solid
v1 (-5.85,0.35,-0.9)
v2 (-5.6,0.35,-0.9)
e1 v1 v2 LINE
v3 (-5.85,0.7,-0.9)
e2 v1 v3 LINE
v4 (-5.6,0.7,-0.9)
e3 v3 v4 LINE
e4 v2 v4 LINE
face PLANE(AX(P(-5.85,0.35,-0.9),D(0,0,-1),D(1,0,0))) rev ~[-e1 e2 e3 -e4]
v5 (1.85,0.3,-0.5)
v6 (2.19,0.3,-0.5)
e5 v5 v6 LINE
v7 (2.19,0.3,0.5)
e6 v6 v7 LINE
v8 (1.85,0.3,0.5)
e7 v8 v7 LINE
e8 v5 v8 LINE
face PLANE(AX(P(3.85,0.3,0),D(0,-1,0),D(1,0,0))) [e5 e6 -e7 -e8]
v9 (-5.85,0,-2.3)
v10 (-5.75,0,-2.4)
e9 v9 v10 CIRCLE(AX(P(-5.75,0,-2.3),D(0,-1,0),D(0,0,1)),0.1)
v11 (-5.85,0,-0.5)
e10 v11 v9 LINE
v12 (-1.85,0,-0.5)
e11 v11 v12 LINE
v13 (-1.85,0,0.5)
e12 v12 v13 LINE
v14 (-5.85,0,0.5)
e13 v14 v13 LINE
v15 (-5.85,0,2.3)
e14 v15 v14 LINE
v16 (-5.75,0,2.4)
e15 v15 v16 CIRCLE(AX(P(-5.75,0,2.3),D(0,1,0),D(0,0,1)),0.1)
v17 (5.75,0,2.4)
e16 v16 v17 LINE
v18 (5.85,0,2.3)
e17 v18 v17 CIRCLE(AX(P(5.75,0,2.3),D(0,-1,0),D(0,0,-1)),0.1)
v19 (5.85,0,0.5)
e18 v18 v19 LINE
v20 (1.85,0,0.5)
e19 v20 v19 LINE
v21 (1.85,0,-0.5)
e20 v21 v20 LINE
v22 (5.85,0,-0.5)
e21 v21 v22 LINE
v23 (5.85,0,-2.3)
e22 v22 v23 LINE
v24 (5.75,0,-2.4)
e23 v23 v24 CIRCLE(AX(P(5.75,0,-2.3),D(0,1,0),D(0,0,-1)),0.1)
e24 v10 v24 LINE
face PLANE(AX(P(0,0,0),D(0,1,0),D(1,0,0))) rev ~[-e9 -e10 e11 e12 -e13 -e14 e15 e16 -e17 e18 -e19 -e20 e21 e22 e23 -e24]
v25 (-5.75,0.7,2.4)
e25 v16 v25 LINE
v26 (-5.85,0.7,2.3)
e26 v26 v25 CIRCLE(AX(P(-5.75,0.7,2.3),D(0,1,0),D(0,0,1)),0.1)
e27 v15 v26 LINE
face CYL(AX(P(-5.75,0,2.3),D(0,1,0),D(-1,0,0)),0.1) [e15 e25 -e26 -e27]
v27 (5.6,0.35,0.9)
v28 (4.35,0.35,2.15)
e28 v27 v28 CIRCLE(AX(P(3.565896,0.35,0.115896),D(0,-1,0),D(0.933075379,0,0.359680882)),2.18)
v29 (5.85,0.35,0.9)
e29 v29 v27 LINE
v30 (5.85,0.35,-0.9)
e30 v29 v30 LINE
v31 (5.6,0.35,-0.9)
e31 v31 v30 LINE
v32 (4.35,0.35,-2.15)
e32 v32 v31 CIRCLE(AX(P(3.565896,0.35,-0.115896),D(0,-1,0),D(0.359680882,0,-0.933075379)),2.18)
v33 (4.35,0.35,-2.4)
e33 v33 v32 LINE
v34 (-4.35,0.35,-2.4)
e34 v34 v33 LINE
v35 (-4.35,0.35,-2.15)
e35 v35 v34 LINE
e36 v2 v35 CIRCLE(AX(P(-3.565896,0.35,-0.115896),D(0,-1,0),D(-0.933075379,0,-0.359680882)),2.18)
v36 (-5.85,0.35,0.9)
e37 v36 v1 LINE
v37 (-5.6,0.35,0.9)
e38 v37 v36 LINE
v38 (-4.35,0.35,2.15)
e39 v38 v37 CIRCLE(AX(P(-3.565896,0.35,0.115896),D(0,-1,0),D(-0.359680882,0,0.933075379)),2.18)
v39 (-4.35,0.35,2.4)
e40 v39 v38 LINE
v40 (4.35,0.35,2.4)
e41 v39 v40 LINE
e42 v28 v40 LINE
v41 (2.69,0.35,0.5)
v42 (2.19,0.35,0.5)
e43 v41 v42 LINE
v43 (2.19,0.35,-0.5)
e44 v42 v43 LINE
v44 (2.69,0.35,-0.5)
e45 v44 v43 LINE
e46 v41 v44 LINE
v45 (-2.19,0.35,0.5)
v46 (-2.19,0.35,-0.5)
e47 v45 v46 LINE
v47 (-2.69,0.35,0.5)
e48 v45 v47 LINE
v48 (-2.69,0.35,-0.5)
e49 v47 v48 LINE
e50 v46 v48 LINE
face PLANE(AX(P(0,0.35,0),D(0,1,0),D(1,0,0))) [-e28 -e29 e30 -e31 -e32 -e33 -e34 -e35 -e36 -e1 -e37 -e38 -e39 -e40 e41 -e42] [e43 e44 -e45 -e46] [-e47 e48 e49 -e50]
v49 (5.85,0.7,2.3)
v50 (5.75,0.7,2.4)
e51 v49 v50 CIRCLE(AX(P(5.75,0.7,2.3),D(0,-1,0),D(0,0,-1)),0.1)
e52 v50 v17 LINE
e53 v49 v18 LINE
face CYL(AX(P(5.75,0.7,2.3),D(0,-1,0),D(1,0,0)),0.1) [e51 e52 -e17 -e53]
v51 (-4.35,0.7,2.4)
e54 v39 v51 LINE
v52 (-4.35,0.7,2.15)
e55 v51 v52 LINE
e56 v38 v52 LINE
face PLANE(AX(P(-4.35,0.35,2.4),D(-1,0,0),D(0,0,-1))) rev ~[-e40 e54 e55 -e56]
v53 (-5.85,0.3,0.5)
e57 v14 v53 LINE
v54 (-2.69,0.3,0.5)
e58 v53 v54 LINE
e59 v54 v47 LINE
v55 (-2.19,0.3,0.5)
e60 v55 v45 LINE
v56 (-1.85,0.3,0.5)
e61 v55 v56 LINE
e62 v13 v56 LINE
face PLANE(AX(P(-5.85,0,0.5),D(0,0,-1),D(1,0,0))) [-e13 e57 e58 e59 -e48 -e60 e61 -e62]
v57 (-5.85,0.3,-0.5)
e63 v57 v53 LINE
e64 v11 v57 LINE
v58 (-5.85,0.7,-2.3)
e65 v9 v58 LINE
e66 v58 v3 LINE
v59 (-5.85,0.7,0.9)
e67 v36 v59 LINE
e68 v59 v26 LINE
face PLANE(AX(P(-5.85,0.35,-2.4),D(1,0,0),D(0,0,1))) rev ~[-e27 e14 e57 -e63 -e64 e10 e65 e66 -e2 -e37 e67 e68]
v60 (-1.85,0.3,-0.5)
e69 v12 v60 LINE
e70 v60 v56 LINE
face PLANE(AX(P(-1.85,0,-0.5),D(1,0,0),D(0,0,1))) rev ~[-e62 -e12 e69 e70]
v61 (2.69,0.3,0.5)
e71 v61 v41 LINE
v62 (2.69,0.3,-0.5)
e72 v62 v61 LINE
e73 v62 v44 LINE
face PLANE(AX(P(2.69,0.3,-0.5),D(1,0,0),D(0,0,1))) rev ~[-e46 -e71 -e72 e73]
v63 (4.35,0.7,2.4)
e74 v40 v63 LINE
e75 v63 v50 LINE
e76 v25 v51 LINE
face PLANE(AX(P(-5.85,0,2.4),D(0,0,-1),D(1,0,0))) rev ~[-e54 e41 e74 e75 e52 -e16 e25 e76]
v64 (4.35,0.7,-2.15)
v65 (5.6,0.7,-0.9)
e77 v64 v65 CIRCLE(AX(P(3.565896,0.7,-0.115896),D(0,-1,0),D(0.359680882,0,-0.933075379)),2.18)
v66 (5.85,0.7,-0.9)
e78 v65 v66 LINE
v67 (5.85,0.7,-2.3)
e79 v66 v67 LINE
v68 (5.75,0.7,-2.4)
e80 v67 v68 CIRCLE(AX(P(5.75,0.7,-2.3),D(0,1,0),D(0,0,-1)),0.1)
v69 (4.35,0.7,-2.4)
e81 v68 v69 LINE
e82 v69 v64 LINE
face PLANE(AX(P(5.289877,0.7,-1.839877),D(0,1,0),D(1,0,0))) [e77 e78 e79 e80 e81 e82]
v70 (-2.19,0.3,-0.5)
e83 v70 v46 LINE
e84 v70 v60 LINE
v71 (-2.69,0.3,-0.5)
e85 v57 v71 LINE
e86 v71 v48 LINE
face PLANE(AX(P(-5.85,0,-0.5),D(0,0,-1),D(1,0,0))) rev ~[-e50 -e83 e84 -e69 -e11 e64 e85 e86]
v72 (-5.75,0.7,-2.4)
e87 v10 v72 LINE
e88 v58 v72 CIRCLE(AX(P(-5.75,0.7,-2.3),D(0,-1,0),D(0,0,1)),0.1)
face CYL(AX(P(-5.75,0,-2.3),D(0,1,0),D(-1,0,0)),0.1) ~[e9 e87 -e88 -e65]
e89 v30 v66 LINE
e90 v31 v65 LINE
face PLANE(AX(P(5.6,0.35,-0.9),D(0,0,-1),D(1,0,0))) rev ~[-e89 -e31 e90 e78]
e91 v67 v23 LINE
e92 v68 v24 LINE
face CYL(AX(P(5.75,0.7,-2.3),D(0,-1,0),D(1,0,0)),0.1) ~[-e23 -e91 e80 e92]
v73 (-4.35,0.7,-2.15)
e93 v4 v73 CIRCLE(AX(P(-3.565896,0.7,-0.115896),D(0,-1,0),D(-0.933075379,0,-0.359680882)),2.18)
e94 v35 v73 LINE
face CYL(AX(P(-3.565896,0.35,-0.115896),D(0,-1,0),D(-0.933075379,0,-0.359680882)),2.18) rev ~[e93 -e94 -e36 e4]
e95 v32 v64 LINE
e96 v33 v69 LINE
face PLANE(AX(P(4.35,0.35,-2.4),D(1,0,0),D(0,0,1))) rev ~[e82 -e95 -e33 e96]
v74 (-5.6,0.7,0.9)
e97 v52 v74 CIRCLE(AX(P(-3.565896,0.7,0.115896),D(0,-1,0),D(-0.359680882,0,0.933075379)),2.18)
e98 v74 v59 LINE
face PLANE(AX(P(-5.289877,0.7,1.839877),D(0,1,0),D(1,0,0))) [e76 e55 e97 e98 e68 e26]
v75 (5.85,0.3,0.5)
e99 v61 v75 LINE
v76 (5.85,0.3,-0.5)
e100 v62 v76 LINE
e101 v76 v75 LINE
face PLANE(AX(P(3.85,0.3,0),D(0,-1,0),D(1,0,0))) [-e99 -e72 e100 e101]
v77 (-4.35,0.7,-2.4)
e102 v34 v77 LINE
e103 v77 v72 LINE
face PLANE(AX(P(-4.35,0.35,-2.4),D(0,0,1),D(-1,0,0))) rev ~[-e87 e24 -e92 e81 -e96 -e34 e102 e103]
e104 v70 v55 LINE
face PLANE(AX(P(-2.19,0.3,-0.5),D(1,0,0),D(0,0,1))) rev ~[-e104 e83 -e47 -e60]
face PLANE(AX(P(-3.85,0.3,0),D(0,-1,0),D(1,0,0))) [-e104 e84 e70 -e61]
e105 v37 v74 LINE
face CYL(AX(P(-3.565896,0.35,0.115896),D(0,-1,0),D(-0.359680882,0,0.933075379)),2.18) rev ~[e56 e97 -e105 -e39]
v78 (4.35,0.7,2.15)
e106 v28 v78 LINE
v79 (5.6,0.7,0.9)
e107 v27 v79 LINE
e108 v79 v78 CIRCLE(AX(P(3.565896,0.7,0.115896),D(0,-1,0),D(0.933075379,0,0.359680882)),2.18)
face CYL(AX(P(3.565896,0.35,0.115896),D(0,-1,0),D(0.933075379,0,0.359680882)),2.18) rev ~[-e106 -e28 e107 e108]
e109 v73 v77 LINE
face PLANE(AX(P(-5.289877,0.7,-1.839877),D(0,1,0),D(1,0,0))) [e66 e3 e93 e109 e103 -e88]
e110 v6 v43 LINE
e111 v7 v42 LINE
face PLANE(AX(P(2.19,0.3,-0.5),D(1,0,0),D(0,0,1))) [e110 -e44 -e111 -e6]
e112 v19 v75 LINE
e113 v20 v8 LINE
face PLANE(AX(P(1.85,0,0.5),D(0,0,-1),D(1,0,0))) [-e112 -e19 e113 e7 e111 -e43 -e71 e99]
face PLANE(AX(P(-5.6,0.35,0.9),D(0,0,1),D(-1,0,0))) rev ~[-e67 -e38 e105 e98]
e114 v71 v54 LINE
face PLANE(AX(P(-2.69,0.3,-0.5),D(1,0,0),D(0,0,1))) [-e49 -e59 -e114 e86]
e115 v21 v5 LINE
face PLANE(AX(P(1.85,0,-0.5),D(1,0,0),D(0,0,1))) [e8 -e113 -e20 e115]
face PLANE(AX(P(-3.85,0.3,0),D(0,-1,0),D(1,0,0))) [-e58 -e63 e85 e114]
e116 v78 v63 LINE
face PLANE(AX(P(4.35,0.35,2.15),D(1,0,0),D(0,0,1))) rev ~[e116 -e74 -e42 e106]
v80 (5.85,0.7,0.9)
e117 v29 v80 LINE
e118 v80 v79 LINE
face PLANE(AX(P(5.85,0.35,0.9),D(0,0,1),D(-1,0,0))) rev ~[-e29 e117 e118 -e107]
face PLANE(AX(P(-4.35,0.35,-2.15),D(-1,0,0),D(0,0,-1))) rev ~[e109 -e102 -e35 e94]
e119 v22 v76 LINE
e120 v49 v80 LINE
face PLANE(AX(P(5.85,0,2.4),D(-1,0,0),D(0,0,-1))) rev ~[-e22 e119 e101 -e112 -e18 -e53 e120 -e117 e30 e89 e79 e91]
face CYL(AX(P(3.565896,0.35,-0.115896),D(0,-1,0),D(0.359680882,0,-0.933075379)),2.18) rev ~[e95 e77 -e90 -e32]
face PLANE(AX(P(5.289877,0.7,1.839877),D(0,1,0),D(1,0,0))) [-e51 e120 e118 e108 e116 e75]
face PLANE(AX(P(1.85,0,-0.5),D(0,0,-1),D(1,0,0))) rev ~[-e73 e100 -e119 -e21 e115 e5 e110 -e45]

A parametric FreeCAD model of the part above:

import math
import FreeCAD as App
import Part
import Sketcher


def edges_at(feature, points):
    """Names of the edges that pass closest to the given points."""
    edges = feature.Shape.Edges
    near = lambda p: min(range(len(edges)), key=lambda i: edges[i].distToShape(Part.Vertex(*p))[0])
    return sorted({f"Edge{near(p) + 1}" for p in points})


def add_polygon(sketch, points):
    """Adds a closed chain of lines whose ends are joined by coincident constraints."""
    first, n = sketch.GeometryCount, len(points)
    for a, b in zip(points, points[1:] + points[:1]):
        sketch.addGeometry(Part.LineSegment(App.Vector(*a, 0), App.Vector(*b, 0)), False)
    for i in range(n):
        sketch.addConstraint(Sketcher.Constraint("Coincident", first + i, 2, first + (i + 1) % n, 1))

doc = App.newDocument("Part")
body = doc.addObject("PartDesign::Body", "Body")

sketch1 = doc.addObject("Sketcher::SketchObject", "Sketch")
body.addObject(sketch1)
sketch1.AttachmentSupport = (doc.XZ_Plane, [""])
sketch1.MapMode = "FlatFace"
add_polygon(sketch1, [(-5.8, -2.4), (-5.8, 2.4), (5.8, 2.4), (5.8, -2.4)])
sketch1.addConstraint([
    Sketcher.Constraint("Vertical", 0),
    Sketcher.Constraint("Horizontal", 1),
    Sketcher.Constraint("Vertical", 2),
    Sketcher.Constraint("Horizontal", 3),
    Sketcher.Constraint("Symmetric", 0, 2, 2, 2, -1, 1),
    Sketcher.Constraint("DistanceX", 1, 1, 1, 2, 11.7),
    Sketcher.Constraint("DistanceY", 0, 1, 0, 2, 4.8),
])
pad1 = doc.addObject("PartDesign::Pad", "Pad")
body.addObject(pad1)
pad1.Profile = sketch1
pad1.Length = 0.35
pad1.Reversed = True

sketch2 = doc.addObject("Sketcher::SketchObject", "Sketch001")
body.addObject(sketch2)
sketch2.AttachmentSupport = (doc.XZ_Plane, [""])
sketch2.MapMode = "FlatFace"
add_polygon(sketch2, [(-5.8, 0.5), (-5.8, -0.5), (-1.9, -0.5), (-1.9, 0.5)])
add_polygon(sketch2, [(1.9, 0.5), (1.9, -0.5), (5.8, -0.5), (5.8, 0.5)])
sketch2.addConstraint([
    Sketcher.Constraint("Vertical", 0),
    Sketcher.Constraint("Horizontal", 1),
    Sketcher.Constraint("Vertical", 2),
    Sketcher.Constraint("Horizontal", 3),
    Sketcher.Constraint("Vertical", 4),
    Sketcher.Constraint("Horizontal", 5),
    Sketcher.Constraint("Vertical", 6),
    Sketcher.Constraint("Horizontal", 7),
    Sketcher.Constraint("Symmetric", 2, 2, 4, 2, -1, 1),
    Sketcher.Constraint("Symmetric", 0, 2, 6, 2, -1, 1),
    Sketcher.Constraint("Horizontal", 1, 2, 4, 2),
    Sketcher.Constraint("DistanceX", 1, 1, 1, 2, 4.0),
    Sketcher.Constraint("DistanceY", 0, 2, 0, 1, 1.0),
    Sketcher.Constraint("DistanceX", 1, 2, 4, 2, 3.7),
])
pocket1 = doc.addObject("PartDesign::Pocket", "Pocket")
body.addObject(pocket1)
pocket1.Profile = sketch2
pocket1.Length = 0.3

sketch3 = doc.addObject("Sketcher::SketchObject", "Sketch002")
body.addObject(sketch3)
sketch3.AttachmentSupport = (doc.XZ_Plane, [""])
sketch3.MapMode = "FlatFace"
sketch3.AttachmentOffset = App.Placement(App.Vector(0, 0, -0.35), App.Rotation())
sketch3.addGeometry([
    Part.LineSegment(App.Vector(-4.35, -2.15, 0), App.Vector(-4.35, -2.4, 0)),
    Part.LineSegment(App.Vector(-4.35, -2.4, 0), App.Vector(-5.85, -2.4, 0)),
    Part.LineSegment(App.Vector(-5.85, -2.4, 0), App.Vector(-5.85, -0.9, 0)),
    Part.LineSegment(App.Vector(-5.85, -0.9, 0), App.Vector(-5.6, -0.9, 0)),
    Part.ArcOfCircle(Part.Circle(App.Vector(-3.57, -0.12, 0), App.Vector(0, 0, 1), 2.18), math.radians(-159), math.radians(-111)),
    Part.LineSegment(App.Vector(5.85, -2.4, 0), App.Vector(4.35, -2.4, 0)),
    Part.LineSegment(App.Vector(4.35, -2.4, 0), App.Vector(4.35, -2.15, 0)),
    Part.ArcOfCircle(Part.Circle(App.Vector(3.57, -0.12, 0), App.Vector(0, 0, 1), 2.18), math.radians(-69), math.radians(-21)),
    Part.LineSegment(App.Vector(5.6, -0.9, 0), App.Vector(5.85, -0.9, 0)),
    Part.LineSegment(App.Vector(5.85, -0.9, 0), App.Vector(5.85, -2.4, 0)),
    Part.LineSegment(App.Vector(4.35, 2.15, 0), App.Vector(4.35, 2.4, 0)),
    Part.LineSegment(App.Vector(4.35, 2.4, 0), App.Vector(5.85, 2.4, 0)),
    Part.LineSegment(App.Vector(5.85, 2.4, 0), App.Vector(5.85, 0.9, 0)),
    Part.LineSegment(App.Vector(5.85, 0.9, 0), App.Vector(5.6, 0.9, 0)),
    Part.ArcOfCircle(Part.Circle(App.Vector(3.57, 0.12, 0), App.Vector(0, 0, 1), 2.18), math.radians(21), math.radians(69)),
    Part.LineSegment(App.Vector(-5.85, 2.4, 0), App.Vector(-4.35, 2.4, 0)),
    Part.LineSegment(App.Vector(-4.35, 2.4, 0), App.Vector(-4.35, 2.15, 0)),
    Part.ArcOfCircle(Part.Circle(App.Vector(-3.57, 0.12, 0), App.Vector(0, 0, 1), 2.18), math.radians(111), math.radians(159)),
    Part.LineSegment(App.Vector(-5.6, 0.9, 0), App.Vector(-5.85, 0.9, 0)),
    Part.LineSegment(App.Vector(-5.85, 0.9, 0), App.Vector(-5.85, 2.4, 0)),
], False)
sketch3.addConstraint([
    Sketcher.Constraint("Coincident", 0, 2, 1, 1),
    Sketcher.Constraint("Coincident", 1, 2, 2, 1),
    Sketcher.Constraint("Coincident", 2, 2, 3, 1),
    Sketcher.Constraint("Coincident", 3, 2, 4, 1),
    Sketcher.Constraint("Coincident", 4, 2, 0, 1),
    Sketcher.Constraint("Coincident", 5, 2, 6, 1),
    Sketcher.Constraint("Coincident", 6, 2, 7, 1),
    Sketcher.Constraint("Coincident", 7, 2, 8, 1),
    Sketcher.Constraint("Coincident", 8, 2, 9, 1),
    Sketcher.Constraint("Coincident", 9, 2, 5, 1),
    Sketcher.Constraint("Coincident", 10, 2, 11, 1),
    Sketcher.Constraint("Coincident", 11, 2, 12, 1),
    Sketcher.Constraint("Coincident", 12, 2, 13, 1),
    Sketcher.Constraint("Coincident", 13, 2, 14, 1),
    Sketcher.Constraint("Coincident", 14, 2, 10, 1),
    Sketcher.Constraint("Coincident", 15, 2, 16, 1),
    Sketcher.Constraint("Coincident", 16, 2, 17, 1),
    Sketcher.Constraint("Coincident", 17, 2, 18, 1),
    Sketcher.Constraint("Coincident", 18, 2, 19, 1),
    Sketcher.Constraint("Coincident", 19, 2, 15, 1),
    Sketcher.Constraint("Vertical", 0),
    Sketcher.Constraint("Horizontal", 1),
    Sketcher.Constraint("Vertical", 2),
    Sketcher.Constraint("Horizontal", 3),
    Sketcher.Constraint("Horizontal", 5),
    Sketcher.Constraint("Vertical", 6),
    Sketcher.Constraint("Horizontal", 8),
    Sketcher.Constraint("Vertical", 9),
    Sketcher.Constraint("Vertical", 10),
    Sketcher.Constraint("Horizontal", 11),
    Sketcher.Constraint("Vertical", 12),
    Sketcher.Constraint("Horizontal", 13),
    Sketcher.Constraint("Horizontal", 15),
    Sketcher.Constraint("Vertical", 16),
    Sketcher.Constraint("Horizontal", 18),
    Sketcher.Constraint("Vertical", 19),
    Sketcher.Constraint("Equal", 4, 7),
    Sketcher.Constraint("Equal", 7, 14),
    Sketcher.Constraint("Equal", 14, 17),
    Sketcher.Constraint("Symmetric", 4, 3, 14, 3, -1, 1),
    Sketcher.Constraint("Symmetric", 7, 3, 17, 3, -1, 1),
    Sketcher.Constraint("Symmetric", 0, 2, 10, 2, -1, 1),
    Sketcher.Constraint("Symmetric", 2, 2, 12, 2, -1, 1),
    Sketcher.Constraint("Symmetric", 5, 2, 15, 2, -1, 1),
    Sketcher.Constraint("Symmetric", 8, 2, 18, 2, -1, 1),
    Sketcher.Constraint("Symmetric", 4, 3, 7, 3, -2),
    Sketcher.Constraint("Symmetric", 0, 2, 5, 2, -2),
    Sketcher.Constraint("Symmetric", 2, 2, 8, 2, -2),
    Sketcher.Constraint("Equal", 18, 0),
    Sketcher.Constraint("Equal", 15, 2),
    Sketcher.Constraint("Radius", 4, 2.18),
    Sketcher.Constraint("DistanceX", 1, 2, 1, 1, 1.5),
    Sketcher.Constraint("DistanceX", 3, 1, 3, 2, 0.25),
    Sketcher.Constraint("DistanceY", 0, 2, -1, 1, 2.4),
    Sketcher.Constraint("DistanceX", 3, 2, -1, 1, 5.6),
])
pad2 = doc.addObject("PartDesign::Pad", "Pad001")
body.addObject(pad2)
pad2.Profile = sketch3
pad2.Length = 0.35
pad2.Reversed = True
doc.recompute()

fillet = doc.addObject("PartDesign::Fillet", "Fillet")
body.addObject(fillet)
fillet.Base = (pad2, edges_at(pad2, [
    (5.85, 0.35, 2.4),
    (-5.85, 0.35, 2.4),
    (-5.85, 0.35, -2.4),
    (5.85, 0.35, -2.4),
]))
fillet.Radius = 0.1

sketch4 = doc.addObject("Sketcher::SketchObject", "Sketch003")
body.addObject(sketch4)
sketch4.AttachmentSupport = (doc.XZ_Plane, [""])
sketch4.MapMode = "FlatFace"
sketch4.AttachmentOffset = App.Placement(App.Vector(0, 0, -0.3), App.Rotation())
add_polygon(sketch4, [(2.2, 0.5), (2.2, -0.5), (2.7, -0.5), (2.7, 0.5)])
add_polygon(sketch4, [(-2.7, 0.5), (-2.7, -0.5), (-2.2, -0.5), (-2.2, 0.5)])
sketch4.addConstraint([
    Sketcher.Constraint("Vertical", 0),
    Sketcher.Constraint("Horizontal", 1),
    Sketcher.Constraint("Vertical", 2),
    Sketcher.Constraint("Horizontal", 3),
    Sketcher.Constraint("Vertical", 4),
    Sketcher.Constraint("Horizontal", 5),
    Sketcher.Constraint("Vertical", 6),
    Sketcher.Constraint("Horizontal", 7),
    Sketcher.Constraint("Symmetric", 2, 2, 4, 2, -1, 1),
    Sketcher.Constraint("Symmetric", 0, 2, 6, 2, -1, 1),
    Sketcher.Constraint("Horizontal", 1, 2, 4, 2),
    Sketcher.Constraint("DistanceY", 0, 2, 0, 1, 1.0),
    Sketcher.Constraint("DistanceX", 1, 1, 1, 2, 0.5),
    Sketcher.Constraint("DistanceX", -1, 1, 0, 2, 2.19),
])
pocket2 = doc.addObject("PartDesign::Pocket", "Pocket001")
body.addObject(pocket2)
pocket2.Profile = sketch4
pocket2.Length = 1

doc.recompute()
